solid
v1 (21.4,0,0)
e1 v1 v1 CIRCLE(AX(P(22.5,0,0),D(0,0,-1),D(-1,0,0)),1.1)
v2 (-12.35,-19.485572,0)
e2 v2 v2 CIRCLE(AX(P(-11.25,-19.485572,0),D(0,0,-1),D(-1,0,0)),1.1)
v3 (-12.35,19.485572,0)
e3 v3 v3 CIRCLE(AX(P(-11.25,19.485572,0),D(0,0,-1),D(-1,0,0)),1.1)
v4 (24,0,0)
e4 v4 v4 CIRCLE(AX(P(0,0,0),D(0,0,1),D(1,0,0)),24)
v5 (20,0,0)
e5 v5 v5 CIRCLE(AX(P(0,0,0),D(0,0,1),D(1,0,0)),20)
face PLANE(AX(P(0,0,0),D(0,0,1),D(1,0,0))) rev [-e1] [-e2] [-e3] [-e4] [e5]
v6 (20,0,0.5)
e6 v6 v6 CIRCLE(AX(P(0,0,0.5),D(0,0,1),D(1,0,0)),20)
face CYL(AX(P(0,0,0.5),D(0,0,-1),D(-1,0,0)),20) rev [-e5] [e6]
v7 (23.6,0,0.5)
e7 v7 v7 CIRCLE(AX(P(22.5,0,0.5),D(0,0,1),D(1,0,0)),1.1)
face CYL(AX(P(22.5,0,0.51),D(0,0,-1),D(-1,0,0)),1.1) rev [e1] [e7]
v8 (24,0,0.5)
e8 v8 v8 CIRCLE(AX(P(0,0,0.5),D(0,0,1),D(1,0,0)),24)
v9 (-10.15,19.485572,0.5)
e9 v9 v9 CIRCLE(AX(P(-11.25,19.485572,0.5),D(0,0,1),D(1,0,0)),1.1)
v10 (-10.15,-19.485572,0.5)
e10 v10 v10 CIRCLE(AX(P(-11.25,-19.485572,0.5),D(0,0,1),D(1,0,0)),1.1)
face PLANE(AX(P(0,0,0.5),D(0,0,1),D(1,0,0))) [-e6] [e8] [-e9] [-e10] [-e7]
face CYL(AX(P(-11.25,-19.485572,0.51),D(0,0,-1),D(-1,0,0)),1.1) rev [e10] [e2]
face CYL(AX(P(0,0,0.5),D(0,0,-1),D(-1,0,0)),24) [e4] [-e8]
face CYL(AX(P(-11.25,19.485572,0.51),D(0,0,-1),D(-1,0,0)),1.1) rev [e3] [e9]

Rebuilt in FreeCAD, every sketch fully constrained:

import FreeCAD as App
import Part
import Sketcher

doc = App.newDocument("Part")
params = doc.addObject("Spreadsheet::Sheet", "Params")
for row, (alias, value) in enumerate([
    ("sketch1_diameter", "48 mm"),
    ("sketch1_diameter2", "40 mm"),
    ("pad1_length", "0.5 mm"),
    ("sketch2_diameter", "2.2 mm"),
    ("pocket1_length", "0.51 mm"),
], start=1):
    params.set(f"A{row}", alias)
    params.set(f"B{row}", "=" + value)
    params.setAlias(f"B{row}", alias)

body = doc.addObject("PartDesign::Body", "Body")

sketch1 = body.newObject("Sketcher::SketchObject", "Sketch")
sketch1.AttachmentSupport = (doc.getObject("XY_Plane"), [""])
sketch1.MapMode = "FlatFace"
sketch1.addGeometry(Part.Circle(App.Vector(0, 0, 0), App.Vector(0, 0, 1), 24), False)
sketch1.addGeometry(Part.Circle(App.Vector(0, 0, 0), App.Vector(0, 0, 1), 20), False)
sketch1.addConstraint(Sketcher.Constraint("Coincident", 0, 3, -1, 1))
sketch1.addConstraint(Sketcher.Constraint("Coincident", 1, 3, -1, 1))
sketch1.addConstraint(Sketcher.Constraint("Diameter", 0, 48.0))
sketch1.addConstraint(Sketcher.Constraint("Diameter", 1, 40.0))
sketch1.setExpression("Constraints[2]", "Params.sketch1_diameter")
sketch1.setExpression("Constraints[3]", "Params.sketch1_diameter2")
pad1 = body.newObject("PartDesign::Pad", "Pad")
pad1.Profile = sketch1
pad1.setExpression("Length", "Params.pad1_length")

sketch2 = body.newObject("Sketcher::SketchObject", "Sketch001")
sketch2.AttachmentSupport = (doc.getObject("XY_Plane"), [""])
sketch2.MapMode = "FlatFace"
sketch2.addGeometry(Part.Circle(App.Vector(22.5, 0, 0), App.Vector(0, 0, 1), 1.1), False)
sketch2.addGeometry(Part.Circle(App.Vector(-11.2, 19.5, 0), App.Vector(0, 0, 1), 1.1), False)
sketch2.addGeometry(Part.Circle(App.Vector(-11.2, -19.5, 0), App.Vector(0, 0, 1), 1.1), False)
sketch2.addConstraint(Sketcher.Constraint("Equal", 0, 1))
sketch2.addConstraint(Sketcher.Constraint("Equal", 1, 2))
sketch2.addConstraint(Sketcher.Constraint("Symmetric", 1, 3, 2, 3, -1))
sketch2.addConstraint(Sketcher.Constraint("PointOnObject", 0, 3, -1))
sketch2.addConstraint(Sketcher.Constraint("Diameter", 0, 2.2))
sketch2.addConstraint(Sketcher.Constraint("DistanceX", -1, 1, 0, 3, 22.5))
sketch2.addConstraint(Sketcher.Constraint("DistanceX", 1, 3, -1, 1, 11.25))
sketch2.addConstraint(Sketcher.Constraint("DistanceY", -1, 1, 1, 3, 19.485572))
sketch2.setExpression("Constraints[4]", "Params.sketch2_diameter")
pocket1 = body.newObject("PartDesign::Pocket", "Pocket")
pocket1.Profile = sketch2
pocket1.setExpression("Length", "Params.pocket1_length")
pocket1.Reversed = True

doc.recompute()
